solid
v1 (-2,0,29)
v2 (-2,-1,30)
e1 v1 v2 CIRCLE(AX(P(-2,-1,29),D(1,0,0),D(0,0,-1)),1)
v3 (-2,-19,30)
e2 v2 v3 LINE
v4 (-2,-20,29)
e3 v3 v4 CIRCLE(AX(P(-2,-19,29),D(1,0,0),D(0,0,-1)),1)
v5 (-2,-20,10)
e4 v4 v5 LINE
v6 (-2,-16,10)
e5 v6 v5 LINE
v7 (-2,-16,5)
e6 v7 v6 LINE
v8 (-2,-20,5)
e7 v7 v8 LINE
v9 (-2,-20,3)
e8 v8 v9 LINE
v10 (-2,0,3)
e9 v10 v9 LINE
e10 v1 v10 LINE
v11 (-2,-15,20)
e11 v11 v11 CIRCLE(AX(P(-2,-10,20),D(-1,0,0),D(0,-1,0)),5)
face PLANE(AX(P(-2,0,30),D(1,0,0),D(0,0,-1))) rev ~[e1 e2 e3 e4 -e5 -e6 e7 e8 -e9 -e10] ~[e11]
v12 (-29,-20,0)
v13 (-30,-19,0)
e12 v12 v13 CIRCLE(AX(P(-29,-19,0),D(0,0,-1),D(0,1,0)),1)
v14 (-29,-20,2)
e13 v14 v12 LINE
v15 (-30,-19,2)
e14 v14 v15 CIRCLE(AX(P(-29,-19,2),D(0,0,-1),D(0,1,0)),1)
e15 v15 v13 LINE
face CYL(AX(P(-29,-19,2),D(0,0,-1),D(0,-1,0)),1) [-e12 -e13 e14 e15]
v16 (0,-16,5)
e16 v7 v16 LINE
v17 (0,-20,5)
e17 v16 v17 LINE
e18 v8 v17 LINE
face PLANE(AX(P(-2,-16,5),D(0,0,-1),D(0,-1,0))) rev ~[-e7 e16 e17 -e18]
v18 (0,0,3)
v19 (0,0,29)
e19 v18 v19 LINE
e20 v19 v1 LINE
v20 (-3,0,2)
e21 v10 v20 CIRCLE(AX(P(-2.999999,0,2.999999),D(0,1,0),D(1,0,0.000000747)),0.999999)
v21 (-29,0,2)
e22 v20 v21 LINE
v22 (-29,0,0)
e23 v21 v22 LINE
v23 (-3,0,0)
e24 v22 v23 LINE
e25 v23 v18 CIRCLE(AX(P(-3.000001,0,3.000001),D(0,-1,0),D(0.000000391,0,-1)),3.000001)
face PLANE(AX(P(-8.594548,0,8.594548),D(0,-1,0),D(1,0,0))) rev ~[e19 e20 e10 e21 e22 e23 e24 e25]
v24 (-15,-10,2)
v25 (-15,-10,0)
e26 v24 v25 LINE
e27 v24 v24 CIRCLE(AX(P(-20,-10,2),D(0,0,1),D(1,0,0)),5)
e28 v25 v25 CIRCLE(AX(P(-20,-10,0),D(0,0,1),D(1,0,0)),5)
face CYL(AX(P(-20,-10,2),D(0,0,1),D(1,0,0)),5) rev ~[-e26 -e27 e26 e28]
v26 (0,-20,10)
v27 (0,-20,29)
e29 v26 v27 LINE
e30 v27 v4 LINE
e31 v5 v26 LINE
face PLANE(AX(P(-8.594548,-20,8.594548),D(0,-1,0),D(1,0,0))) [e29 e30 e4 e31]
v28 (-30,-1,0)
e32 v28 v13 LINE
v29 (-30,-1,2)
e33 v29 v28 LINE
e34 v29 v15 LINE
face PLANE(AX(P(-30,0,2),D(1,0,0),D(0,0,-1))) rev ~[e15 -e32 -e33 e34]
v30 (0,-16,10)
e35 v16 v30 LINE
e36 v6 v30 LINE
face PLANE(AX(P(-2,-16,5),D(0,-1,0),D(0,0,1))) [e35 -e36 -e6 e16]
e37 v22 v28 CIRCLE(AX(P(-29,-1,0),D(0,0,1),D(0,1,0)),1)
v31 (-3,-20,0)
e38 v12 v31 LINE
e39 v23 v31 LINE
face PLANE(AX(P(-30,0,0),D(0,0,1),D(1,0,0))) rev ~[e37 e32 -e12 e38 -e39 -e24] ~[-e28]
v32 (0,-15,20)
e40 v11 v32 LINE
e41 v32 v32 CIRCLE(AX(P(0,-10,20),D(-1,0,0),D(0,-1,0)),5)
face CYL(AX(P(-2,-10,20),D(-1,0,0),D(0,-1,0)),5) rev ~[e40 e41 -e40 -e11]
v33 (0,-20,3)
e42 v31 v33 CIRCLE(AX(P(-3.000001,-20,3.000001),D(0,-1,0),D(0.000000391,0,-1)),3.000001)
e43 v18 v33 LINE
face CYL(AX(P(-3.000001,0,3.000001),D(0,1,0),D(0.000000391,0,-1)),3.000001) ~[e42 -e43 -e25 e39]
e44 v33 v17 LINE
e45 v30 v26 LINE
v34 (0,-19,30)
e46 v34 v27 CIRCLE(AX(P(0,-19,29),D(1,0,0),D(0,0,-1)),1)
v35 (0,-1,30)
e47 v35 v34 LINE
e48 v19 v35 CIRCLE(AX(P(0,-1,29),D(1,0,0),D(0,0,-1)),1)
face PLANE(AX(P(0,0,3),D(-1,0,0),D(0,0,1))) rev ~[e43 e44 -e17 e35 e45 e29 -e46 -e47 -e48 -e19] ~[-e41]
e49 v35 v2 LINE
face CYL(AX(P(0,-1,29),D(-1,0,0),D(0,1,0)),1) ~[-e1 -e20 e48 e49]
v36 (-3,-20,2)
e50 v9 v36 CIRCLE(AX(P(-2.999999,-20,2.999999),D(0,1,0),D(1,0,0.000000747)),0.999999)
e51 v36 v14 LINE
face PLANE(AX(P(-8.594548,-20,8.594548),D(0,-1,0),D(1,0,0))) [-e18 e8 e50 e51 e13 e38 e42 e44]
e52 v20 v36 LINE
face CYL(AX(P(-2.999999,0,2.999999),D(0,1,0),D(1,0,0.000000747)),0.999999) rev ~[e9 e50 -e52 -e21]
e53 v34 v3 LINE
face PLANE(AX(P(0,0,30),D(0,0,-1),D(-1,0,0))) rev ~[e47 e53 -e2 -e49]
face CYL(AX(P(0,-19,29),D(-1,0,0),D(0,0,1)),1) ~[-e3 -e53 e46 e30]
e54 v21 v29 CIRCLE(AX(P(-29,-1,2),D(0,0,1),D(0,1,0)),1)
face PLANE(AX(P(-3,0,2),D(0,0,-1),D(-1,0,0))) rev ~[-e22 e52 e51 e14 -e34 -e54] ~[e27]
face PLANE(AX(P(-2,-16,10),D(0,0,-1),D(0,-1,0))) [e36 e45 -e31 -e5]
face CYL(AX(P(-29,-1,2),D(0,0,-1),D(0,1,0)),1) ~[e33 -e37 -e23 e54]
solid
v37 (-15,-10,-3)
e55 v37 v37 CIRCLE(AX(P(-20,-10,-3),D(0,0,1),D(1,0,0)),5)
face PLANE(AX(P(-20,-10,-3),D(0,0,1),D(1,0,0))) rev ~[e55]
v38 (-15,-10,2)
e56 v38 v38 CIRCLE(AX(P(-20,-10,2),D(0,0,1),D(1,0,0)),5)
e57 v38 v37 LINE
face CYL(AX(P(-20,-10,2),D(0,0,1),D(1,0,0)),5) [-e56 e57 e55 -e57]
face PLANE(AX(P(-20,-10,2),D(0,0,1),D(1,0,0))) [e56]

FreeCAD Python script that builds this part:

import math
import FreeCAD as App
import Part
import Sketcher
Q = App.Units.Quantity


def edges_at(feature, points):
    """Names of the edges that pass closest to the given points."""
    edges = feature.Shape.Edges
    near = lambda p: min(range(len(edges)), key=lambda i: edges[i].distToShape(Part.Vertex(*p))[0])
    return sorted({f"Edge{near(p) + 1}" for p in points})

doc = App.newDocument("Part")
body = doc.addObject("PartDesign::Body", "Body")

sketch1 = body.newObject("Sketcher::SketchObject", "Sketch")
sketch1.AttachmentSupport = (doc.getObject("XZ_Plane"), [""])
sketch1.MapMode = "FlatFace"
sketch1.addGeometry([
    Part.ArcOfCircle(Part.Circle(App.Vector(-3, 3, 0), App.Vector(0, 0, 1), 3), math.radians(-90), math.radians(0)),
    Part.LineSegment(App.Vector(0, 3, 0), App.Vector(0, 30, 0)),
    Part.LineSegment(App.Vector(0, 30, 0), App.Vector(-2, 30, 0)),
    Part.LineSegment(App.Vector(-2, 30, 0), App.Vector(-2, 3, 0)),
    Part.ArcOfCircle(Part.Circle(App.Vector(-3, 3, 0), App.Vector(0, 0, 1), 1), math.radians(-90), math.radians(0)),
    Part.LineSegment(App.Vector(-3, 2, 0), App.Vector(-30, 2, 0)),
    Part.LineSegment(App.Vector(-30, 2, 0), App.Vector(-30, 0, 0)),
    Part.LineSegment(App.Vector(-30, 0, 0), App.Vector(-3, 0, 0)),
], False)
sketch1.addConstraint([
    Sketcher.Constraint("Tangent", 0, 2, 1, 1),
    Sketcher.Constraint("Coincident", 1, 2, 2, 1),
    Sketcher.Constraint("Coincident", 2, 2, 3, 1),
    Sketcher.Constraint("Tangent", 3, 2, 4, 2),
    Sketcher.Constraint("Tangent", 4, 1, 5, 1),
    Sketcher.Constraint("Coincident", 5, 2, 6, 1),
    Sketcher.Constraint("Coincident", 6, 2, 7, 1),
    Sketcher.Constraint("Tangent", 7, 2, 0, 1),
    Sketcher.Constraint("Vertical", 1),
    Sketcher.Constraint("Horizontal", 2),
    Sketcher.Constraint("Vertical", 3),
    Sketcher.Constraint("Horizontal", 5),
    Sketcher.Constraint("Vertical", 6),
    Sketcher.Constraint("Horizontal", 7),
    Sketcher.Constraint("Coincident", 4, 3, 0, 3),
    Sketcher.Constraint("PointOnObject", 0, 2, -2),
    Sketcher.Constraint("PointOnObject", 6, 2, -1),
    Sketcher.Constraint("Equal", 7, 1),
    Sketcher.Constraint("Radius", 0, Q("3.000001 mm")),
    Sketcher.Constraint("Radius", 4, Q("0.999999 mm")),
    Sketcher.Constraint("DistanceX", 5, 2, 5, 1, Q("27 mm")),
])
pad1 = body.newObject("PartDesign::Pad", "Pad")
pad1.Profile = sketch1
pad1.Length = 20

sketch2 = body.newObject("Sketcher::SketchObject", "Sketch001")
sketch2.AttachmentSupport = (doc.getObject("XY_Plane"), [""])
sketch2.MapMode = "FlatFace"
sketch2.AttachmentOffset = App.Placement(App.Vector(0, 0, 2), App.Rotation())
sketch2.addGeometry(Part.Circle(App.Vector(-20, -10, 0), App.Vector(0, 0, 1), 5), False)
sketch2.addConstraint([
    Sketcher.Constraint("Diameter", 0, Q("10 mm")),
    Sketcher.Constraint("DistanceX", 0, 3, -1, 1, Q("20 mm")),
    Sketcher.Constraint("DistanceY", 0, 3, -1, 1, Q("10 mm")),
])
pocket1 = body.newObject("PartDesign::Pocket", "Pocket")
pocket1.Profile = sketch2
pocket1.Type = "ThroughAll"

sketch3 = body.newObject("Sketcher::SketchObject", "Sketch002")
sketch3.AttachmentSupport = (doc.getObject("YZ_Plane"), [""])
sketch3.MapMode = "FlatFace"
sketch3.AttachmentOffset = App.Placement(App.Vector(0, 0, -2), App.Rotation())
sketch3.addGeometry(Part.Circle(App.Vector(-10, 20, 0), App.Vector(0, 0, 1), 5), False)
sketch3.addConstraint([
    Sketcher.Constraint("Diameter", 0, Q("10 mm")),
    Sketcher.Constraint("DistanceX", 0, 3, -1, 1, Q("10 mm")),
    Sketcher.Constraint("DistanceY", -1, 1, 0, 3, Q("20 mm")),
])
pocket2 = body.newObject("PartDesign::Pocket", "Pocket001")
pocket2.Profile = sketch3
pocket2.Type = "ThroughAll"
pocket2.Reversed = True

sketch4 = body.newObject("Sketcher::SketchObject", "Sketch003")
sketch4.AttachmentSupport = (doc.getObject("YZ_Plane"), [""])
sketch4.MapMode = "FlatFace"
sketch4.AttachmentOffset = App.Placement(App.Vector(0, 0, -2), App.Rotation())
sketch4.addGeometry([
    Part.LineSegment(App.Vector(-16, 10, 0), App.Vector(-16, 5, 0)),
    Part.LineSegment(App.Vector(-16, 5, 0), App.Vector(-20, 5, 0)),
    Part.LineSegment(App.Vector(-20, 5, 0), App.Vector(-20, 10, 0)),
    Part.LineSegment(App.Vector(-20, 10, 0), App.Vector(-16, 10, 0)),
], False)
sketch4.addConstraint([
    Sketcher.Constraint("Coincident", 0, 2, 1, 1),
    Sketcher.Constraint("Coincident", 1, 2, 2, 1),
    Sketcher.Constraint("Coincident", 2, 2, 3, 1),
    Sketcher.Constraint("Coincident", 3, 2, 0, 1),
    Sketcher.Constraint("Vertical", 0),
    Sketcher.Constraint("Horizontal", 1),
    Sketcher.Constraint("Vertical", 2),
    Sketcher.Constraint("Horizontal", 3),
    Sketcher.Constraint("DistanceX", 1, 2, 1, 1, Q("4 mm")),
    Sketcher.Constraint("DistanceY", 0, 2, 0, 1, Q("5 mm")),
    Sketcher.Constraint("DistanceX", 0, 2, -1, 1, Q("16 mm")),
    Sketcher.Constraint("DistanceY", -1, 1, 0, 2, Q("5 mm")),
])
pocket3 = body.newObject("PartDesign::Pocket", "Pocket002")
pocket3.Profile = sketch4
pocket3.Type = "ThroughAll"
pocket3.Reversed = True
doc.recompute()

fillet = body.newObject("PartDesign::Fillet", "Fillet")
fillet.Base = (pocket3, edges_at(pocket3, [
    (-1, -20, 30),
    (-1, 0, 30),
    (-30, -20, 1),
    (-30, 0, 1),
]))
fillet.Radius = 1
body2 = doc.addObject("PartDesign::Body", "Body001")

sketch5 = body2.newObject("Sketcher::SketchObject", "Sketch004")
sketch5.AttachmentSupport = (doc.getObject("XY_Plane001"), [""])
sketch5.MapMode = "FlatFace"
sketch5.AttachmentOffset = App.Placement(App.Vector(0, 0, 2), App.Rotation())
sketch5.addGeometry(Part.Circle(App.Vector(-20, -10, 0), App.Vector(0, 0, 1), 5), False)
sketch5.addConstraint([
    Sketcher.Constraint("Diameter", 0, Q("10 mm")),
    Sketcher.Constraint("DistanceX", 0, 3, -1, 1, Q("20 mm")),
    Sketcher.Constraint("DistanceY", 0, 3, -1, 1, Q("10 mm")),
])
pad2 = body2.newObject("PartDesign::Pad", "Pad001")
pad2.Profile = sketch5
pad2.Length = 5
pad2.Reversed = True

doc.recompute()
